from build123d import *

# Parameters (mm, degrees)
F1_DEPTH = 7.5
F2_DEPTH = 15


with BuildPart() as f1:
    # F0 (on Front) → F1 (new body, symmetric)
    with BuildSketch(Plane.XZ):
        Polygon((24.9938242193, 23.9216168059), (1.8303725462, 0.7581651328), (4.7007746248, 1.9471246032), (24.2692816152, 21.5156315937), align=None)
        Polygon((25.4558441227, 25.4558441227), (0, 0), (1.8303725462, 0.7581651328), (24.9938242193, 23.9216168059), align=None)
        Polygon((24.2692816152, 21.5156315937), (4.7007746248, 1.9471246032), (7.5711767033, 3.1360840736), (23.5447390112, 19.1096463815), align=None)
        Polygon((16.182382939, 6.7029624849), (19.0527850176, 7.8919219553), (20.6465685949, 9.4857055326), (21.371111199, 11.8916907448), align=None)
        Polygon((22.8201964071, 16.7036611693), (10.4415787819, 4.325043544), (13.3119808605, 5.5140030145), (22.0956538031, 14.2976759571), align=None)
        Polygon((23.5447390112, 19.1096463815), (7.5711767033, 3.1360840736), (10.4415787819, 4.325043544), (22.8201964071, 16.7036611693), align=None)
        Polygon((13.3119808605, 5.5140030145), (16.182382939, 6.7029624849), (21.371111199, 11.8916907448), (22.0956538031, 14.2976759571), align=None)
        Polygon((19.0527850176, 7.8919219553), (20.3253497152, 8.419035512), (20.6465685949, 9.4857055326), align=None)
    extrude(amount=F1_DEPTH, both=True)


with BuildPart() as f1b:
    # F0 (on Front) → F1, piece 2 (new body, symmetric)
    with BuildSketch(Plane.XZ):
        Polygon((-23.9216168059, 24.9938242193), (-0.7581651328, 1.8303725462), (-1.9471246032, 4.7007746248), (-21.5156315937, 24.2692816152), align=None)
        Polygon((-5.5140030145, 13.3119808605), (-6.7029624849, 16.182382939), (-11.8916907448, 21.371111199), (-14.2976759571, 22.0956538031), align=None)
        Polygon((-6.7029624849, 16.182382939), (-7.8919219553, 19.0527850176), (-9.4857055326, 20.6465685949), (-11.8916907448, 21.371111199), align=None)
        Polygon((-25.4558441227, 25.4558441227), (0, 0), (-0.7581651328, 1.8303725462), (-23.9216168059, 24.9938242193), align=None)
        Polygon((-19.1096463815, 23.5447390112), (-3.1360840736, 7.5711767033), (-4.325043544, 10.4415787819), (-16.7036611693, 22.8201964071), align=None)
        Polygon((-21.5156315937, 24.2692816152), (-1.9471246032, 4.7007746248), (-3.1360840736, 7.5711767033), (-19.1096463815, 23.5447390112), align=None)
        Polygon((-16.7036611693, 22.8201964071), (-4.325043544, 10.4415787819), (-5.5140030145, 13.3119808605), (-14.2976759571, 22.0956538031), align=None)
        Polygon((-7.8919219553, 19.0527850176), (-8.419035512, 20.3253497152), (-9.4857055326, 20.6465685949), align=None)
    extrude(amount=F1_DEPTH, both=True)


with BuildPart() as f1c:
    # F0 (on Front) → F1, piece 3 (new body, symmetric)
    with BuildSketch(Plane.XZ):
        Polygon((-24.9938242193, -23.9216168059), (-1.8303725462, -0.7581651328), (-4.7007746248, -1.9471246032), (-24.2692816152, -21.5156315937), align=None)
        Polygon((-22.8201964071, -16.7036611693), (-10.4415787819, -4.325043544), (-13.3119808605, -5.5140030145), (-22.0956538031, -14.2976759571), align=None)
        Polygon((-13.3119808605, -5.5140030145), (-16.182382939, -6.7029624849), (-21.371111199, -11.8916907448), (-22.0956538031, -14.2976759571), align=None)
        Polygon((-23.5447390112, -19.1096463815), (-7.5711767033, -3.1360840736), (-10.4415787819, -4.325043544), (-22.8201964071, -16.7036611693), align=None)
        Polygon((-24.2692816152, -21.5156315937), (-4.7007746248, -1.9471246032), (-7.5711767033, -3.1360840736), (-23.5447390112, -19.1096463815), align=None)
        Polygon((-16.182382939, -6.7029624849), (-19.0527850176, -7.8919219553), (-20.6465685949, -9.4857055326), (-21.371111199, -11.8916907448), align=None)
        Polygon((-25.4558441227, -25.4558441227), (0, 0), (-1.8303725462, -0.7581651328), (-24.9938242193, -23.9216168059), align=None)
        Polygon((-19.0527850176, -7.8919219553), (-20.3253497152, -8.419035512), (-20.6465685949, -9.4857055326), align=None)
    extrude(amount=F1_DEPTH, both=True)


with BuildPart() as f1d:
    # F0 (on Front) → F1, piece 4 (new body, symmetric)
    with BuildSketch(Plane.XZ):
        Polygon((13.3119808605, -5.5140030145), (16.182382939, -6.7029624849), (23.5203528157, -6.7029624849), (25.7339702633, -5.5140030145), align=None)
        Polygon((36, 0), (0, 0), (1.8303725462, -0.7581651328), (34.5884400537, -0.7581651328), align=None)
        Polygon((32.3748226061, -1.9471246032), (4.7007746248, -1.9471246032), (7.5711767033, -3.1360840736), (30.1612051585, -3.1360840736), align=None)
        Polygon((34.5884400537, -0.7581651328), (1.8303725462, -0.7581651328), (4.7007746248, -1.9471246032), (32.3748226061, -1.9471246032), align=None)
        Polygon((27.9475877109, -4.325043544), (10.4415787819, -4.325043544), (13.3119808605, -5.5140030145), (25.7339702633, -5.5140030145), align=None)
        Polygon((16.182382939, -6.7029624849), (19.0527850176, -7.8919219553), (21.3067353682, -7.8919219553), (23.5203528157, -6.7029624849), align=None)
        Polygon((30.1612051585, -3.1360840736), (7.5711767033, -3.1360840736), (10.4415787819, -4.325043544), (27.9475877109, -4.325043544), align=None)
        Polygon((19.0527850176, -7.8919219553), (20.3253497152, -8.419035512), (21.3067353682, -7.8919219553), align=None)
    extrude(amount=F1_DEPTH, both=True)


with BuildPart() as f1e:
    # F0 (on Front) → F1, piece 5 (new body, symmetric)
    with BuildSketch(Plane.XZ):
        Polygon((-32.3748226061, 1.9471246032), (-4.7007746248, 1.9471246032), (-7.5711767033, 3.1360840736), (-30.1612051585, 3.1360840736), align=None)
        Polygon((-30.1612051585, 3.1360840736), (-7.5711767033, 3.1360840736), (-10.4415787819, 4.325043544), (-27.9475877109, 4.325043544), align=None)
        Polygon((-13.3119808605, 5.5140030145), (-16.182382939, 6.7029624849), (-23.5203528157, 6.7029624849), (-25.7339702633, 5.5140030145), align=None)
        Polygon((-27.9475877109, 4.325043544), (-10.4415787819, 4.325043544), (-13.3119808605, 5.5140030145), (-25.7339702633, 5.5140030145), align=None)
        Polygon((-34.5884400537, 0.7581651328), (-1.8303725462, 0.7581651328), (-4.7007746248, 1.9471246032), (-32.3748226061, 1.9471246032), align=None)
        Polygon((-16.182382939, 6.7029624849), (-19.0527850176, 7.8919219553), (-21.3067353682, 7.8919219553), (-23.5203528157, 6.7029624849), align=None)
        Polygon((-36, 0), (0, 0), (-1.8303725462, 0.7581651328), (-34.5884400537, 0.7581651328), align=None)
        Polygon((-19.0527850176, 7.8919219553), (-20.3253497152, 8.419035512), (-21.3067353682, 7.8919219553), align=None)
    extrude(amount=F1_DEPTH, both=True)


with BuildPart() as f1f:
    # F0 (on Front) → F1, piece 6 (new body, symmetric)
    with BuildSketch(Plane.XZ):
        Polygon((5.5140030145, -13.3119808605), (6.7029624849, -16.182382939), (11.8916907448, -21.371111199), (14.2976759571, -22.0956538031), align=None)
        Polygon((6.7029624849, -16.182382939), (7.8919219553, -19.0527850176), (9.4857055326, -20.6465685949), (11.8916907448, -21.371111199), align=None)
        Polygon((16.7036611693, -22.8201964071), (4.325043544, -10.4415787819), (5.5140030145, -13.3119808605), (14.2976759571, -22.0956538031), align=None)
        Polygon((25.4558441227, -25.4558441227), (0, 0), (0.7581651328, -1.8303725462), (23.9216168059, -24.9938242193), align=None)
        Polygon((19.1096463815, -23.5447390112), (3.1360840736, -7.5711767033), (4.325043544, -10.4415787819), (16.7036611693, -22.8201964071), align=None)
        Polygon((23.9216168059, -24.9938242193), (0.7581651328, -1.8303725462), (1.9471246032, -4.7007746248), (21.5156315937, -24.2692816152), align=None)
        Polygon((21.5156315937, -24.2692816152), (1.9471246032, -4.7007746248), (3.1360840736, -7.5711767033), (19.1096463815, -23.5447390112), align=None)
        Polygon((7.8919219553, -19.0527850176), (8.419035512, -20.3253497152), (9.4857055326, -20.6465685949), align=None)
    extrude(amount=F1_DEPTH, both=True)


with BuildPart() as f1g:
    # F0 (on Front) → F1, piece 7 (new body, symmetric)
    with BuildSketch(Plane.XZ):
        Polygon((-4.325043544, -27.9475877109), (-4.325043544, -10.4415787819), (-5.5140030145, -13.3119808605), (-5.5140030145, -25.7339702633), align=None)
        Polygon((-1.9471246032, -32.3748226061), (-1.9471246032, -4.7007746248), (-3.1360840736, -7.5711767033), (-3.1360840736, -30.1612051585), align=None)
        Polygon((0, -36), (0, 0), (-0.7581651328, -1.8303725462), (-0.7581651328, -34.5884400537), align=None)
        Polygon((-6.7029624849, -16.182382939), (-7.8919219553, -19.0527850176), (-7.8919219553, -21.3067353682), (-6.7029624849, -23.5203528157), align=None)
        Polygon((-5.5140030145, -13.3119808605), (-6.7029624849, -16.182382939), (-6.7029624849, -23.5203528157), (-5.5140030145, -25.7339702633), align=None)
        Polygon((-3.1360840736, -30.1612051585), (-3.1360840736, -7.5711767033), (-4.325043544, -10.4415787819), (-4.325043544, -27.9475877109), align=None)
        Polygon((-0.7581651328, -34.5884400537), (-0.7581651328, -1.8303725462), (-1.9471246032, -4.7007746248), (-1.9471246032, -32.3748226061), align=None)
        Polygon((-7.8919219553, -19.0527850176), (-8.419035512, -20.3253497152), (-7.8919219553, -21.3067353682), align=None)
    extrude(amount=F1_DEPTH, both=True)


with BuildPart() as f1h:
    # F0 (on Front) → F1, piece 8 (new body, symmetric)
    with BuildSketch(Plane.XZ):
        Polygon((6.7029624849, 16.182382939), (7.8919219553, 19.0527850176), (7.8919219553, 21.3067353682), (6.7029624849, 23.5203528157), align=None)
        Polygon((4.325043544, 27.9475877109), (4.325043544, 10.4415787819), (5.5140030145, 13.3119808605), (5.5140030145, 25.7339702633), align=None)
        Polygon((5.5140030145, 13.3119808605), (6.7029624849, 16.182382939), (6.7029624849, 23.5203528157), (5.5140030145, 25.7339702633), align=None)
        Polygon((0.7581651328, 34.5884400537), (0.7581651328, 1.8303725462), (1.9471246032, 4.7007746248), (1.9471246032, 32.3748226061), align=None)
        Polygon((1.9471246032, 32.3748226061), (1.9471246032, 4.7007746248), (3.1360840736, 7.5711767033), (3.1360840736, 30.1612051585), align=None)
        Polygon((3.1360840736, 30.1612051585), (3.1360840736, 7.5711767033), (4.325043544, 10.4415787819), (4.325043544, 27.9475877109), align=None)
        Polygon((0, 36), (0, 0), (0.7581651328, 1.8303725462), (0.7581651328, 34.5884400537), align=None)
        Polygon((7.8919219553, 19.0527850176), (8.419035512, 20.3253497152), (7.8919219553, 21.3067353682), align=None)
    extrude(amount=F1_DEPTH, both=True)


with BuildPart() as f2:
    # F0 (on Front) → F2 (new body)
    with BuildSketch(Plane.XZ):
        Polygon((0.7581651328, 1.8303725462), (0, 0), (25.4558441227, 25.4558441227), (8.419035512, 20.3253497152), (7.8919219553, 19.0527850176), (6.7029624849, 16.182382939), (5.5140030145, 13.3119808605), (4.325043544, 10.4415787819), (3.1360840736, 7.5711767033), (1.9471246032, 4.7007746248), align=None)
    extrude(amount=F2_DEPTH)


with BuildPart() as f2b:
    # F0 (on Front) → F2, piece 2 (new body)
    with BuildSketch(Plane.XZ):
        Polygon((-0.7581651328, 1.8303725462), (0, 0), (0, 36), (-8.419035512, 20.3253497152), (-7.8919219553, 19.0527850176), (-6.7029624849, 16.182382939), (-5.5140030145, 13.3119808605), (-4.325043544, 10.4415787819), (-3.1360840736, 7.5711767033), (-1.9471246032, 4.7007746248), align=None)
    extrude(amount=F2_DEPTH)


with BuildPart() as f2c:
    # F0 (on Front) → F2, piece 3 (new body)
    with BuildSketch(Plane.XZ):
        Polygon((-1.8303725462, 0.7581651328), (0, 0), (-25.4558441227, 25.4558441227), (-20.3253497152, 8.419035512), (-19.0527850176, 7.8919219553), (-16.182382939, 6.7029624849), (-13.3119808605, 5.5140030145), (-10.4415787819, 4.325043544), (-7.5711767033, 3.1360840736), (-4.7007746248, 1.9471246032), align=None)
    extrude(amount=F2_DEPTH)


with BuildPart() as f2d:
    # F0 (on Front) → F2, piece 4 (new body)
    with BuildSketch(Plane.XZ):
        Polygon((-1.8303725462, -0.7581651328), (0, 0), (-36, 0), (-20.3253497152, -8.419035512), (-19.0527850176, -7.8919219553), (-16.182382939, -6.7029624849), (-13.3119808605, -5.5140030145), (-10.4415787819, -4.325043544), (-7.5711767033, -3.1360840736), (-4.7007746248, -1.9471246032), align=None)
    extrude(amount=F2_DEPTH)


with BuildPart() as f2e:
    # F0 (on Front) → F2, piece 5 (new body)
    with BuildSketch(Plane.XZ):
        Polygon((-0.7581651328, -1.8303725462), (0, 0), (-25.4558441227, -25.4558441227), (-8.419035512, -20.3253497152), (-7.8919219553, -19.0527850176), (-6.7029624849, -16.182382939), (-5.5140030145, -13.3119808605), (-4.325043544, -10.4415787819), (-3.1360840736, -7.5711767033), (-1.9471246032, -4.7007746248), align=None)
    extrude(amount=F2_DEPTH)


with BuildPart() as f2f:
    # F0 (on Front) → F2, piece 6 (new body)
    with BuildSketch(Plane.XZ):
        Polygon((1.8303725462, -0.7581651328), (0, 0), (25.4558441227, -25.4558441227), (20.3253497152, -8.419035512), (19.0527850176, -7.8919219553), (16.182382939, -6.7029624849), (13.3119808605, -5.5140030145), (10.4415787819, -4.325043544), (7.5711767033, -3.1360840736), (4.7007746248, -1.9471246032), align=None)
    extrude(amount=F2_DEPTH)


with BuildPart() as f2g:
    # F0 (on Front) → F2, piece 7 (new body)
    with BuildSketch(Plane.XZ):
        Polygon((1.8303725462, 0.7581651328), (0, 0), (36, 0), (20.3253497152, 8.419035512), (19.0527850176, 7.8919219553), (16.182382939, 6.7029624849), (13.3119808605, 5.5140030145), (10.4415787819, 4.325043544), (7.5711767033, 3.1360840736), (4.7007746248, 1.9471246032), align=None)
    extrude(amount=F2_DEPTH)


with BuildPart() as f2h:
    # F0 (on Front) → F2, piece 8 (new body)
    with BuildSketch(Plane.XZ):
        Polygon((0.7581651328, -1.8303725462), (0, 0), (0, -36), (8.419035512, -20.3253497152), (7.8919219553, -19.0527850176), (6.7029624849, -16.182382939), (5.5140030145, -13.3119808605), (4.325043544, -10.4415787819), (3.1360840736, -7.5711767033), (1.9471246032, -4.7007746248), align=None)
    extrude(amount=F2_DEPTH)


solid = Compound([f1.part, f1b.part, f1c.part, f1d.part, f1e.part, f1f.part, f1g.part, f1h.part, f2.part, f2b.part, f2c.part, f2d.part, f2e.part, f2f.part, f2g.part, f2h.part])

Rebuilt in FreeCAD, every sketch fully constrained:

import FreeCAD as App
import Part
import Sketcher
Q = App.Units.Quantity


def add_polygon(sketch, points):
    """Adds a closed chain of lines whose ends are joined by coincident constraints."""
    first, n = sketch.GeometryCount, len(points)
    for a, b in zip(points, points[1:] + points[:1]):
        sketch.addGeometry(Part.LineSegment(App.Vector(*a, 0), App.Vector(*b, 0)), False)
    for i in range(n):
        sketch.addConstraint(Sketcher.Constraint("Coincident", first + i, 2, first + (i + 1) % n, 1))

doc = App.newDocument("Part")
body = doc.addObject("PartDesign::Body", "Body")

# Sketch on XZ plane
sketch1 = body.newObject("Sketcher::SketchObject", "Sketch")
sketch1.AttachmentSupport = (doc.getObject("XZ_Plane"), [""])
sketch1.MapMode = "FlatFace"
add_polygon(sketch1, [(1.8, 0.8), (4.7, 1.9), (7.6, 3.1), (10.4, 4.3), (13.3, 5.5), (16.2, 6.7), (19.1, 7.9), (20.3, 8.4), (20.6, 9.5), (21.4, 11.9), (22.1, 14.3), (22.8, 16.7), (23.5, 19.1), (24.3, 21.5), (25, 23.9), (25.5, 25.5), (0, 0)])  # lines 0-16
sketch1.addConstraint([
    Sketcher.Constraint("Coincident", 15, 2, -1, 1),
    Sketcher.Constraint("Parallel", 0, 1),
    Sketcher.Constraint("Parallel", 1, 2),
    Sketcher.Constraint("Parallel", 2, 3),
    Sketcher.Constraint("Parallel", 3, 4),
    Sketcher.Constraint("Parallel", 4, 5),
    Sketcher.Constraint("Parallel", 5, 6),
    Sketcher.Constraint("Parallel", 7, 8),
    Sketcher.Constraint("Parallel", 8, 9),
    Sketcher.Constraint("Parallel", 9, 10),
    Sketcher.Constraint("Parallel", 10, 11),
    Sketcher.Constraint("Parallel", 11, 12),
    Sketcher.Constraint("Parallel", 12, 13),
    Sketcher.Constraint("Parallel", 13, 14),
    Sketcher.Constraint("Parallel", 6, 16),
    Sketcher.Constraint("Equal", 0, 1),
    Sketcher.Constraint("Equal", 1, 2),
    Sketcher.Constraint("Equal", 2, 3),
    Sketcher.Constraint("Equal", 3, 4),
    Sketcher.Constraint("Equal", 4, 5),
    Sketcher.Constraint("Equal", 8, 9),
    Sketcher.Constraint("Equal", 9, 10),
    Sketcher.Constraint("Equal", 10, 11),
    Sketcher.Constraint("Equal", 11, 12),
    Sketcher.Constraint("Equal", 12, 13),
    Sketcher.Constraint("Angle", 15, Q("-135 deg")),
    Sketcher.Constraint("Distance", 15, Q("36 mm")),
    Sketcher.Constraint("Angle", 0, Q("22.5 deg")),
    Sketcher.Constraint("Distance", 0, Q("3.106901 mm")),
    Sketcher.Constraint("Distance", 16, Q("1.981181 mm")),
    Sketcher.Constraint("DistanceX", -1, 1, 6, 2, Q("20.32535 mm")),
    Sketcher.Constraint("DistanceX", -1, 1, 7, 2, Q("20.646569 mm")),
    Sketcher.Constraint("DistanceX", -1, 1, 8, 2, Q("21.371111 mm")),
])
pad1 = body.newObject("PartDesign::Pad", "Pad")
pad1.Profile = sketch1
pad1.Length = 15
pad1.Midplane = True
body2 = doc.addObject("PartDesign::Body", "Body001")

# Sketch on XZ plane
sketch2 = body2.newObject("Sketcher::SketchObject", "Sketch001")
sketch2.AttachmentSupport = (doc.getObject("XZ_Plane001"), [""])
sketch2.MapMode = "FlatFace"
add_polygon(sketch2, [(-0.8, 1.8), (-1.9, 4.7), (-3.1, 7.6), (-4.3, 10.4), (-5.5, 13.3), (-6.7, 16.2), (-7.9, 19.1), (-8.4, 20.3), (-9.5, 20.6), (-11.9, 21.4), (-14.3, 22.1), (-16.7, 22.8), (-19.1, 23.5), (-21.5, 24.3), (-23.9, 25), (-25.5, 25.5), (0, 0)])  # lines 0-16
sketch2.addConstraint([
    Sketcher.Constraint("Coincident", 15, 2, -1, 1),
    Sketcher.Constraint("Parallel", 0, 1),
    Sketcher.Constraint("Parallel", 1, 2),
    Sketcher.Constraint("Parallel", 2, 3),
    Sketcher.Constraint("Parallel", 3, 4),
    Sketcher.Constraint("Parallel", 4, 5),
    Sketcher.Constraint("Parallel", 5, 6),
    Sketcher.Constraint("Parallel", 7, 8),
    Sketcher.Constraint("Parallel", 8, 9),
    Sketcher.Constraint("Parallel", 9, 10),
    Sketcher.Constraint("Parallel", 10, 11),
    Sketcher.Constraint("Parallel", 11, 12),
    Sketcher.Constraint("Parallel", 12, 13),
    Sketcher.Constraint("Parallel", 13, 14),
    Sketcher.Constraint("Parallel", 6, 16),
    Sketcher.Constraint("Equal", 0, 1),
    Sketcher.Constraint("Equal", 1, 2),
    Sketcher.Constraint("Equal", 2, 3),
    Sketcher.Constraint("Equal", 3, 4),
    Sketcher.Constraint("Equal", 4, 5),
    Sketcher.Constraint("Equal", 8, 9),
    Sketcher.Constraint("Equal", 9, 10),
    Sketcher.Constraint("Equal", 10, 11),
    Sketcher.Constraint("Equal", 11, 12),
    Sketcher.Constraint("Equal", 12, 13),
    Sketcher.Constraint("Angle", 15, Q("-45 deg")),
    Sketcher.Constraint("Distance", 15, Q("36 mm")),
    Sketcher.Constraint("Angle", 0, Q("112.5 deg")),
    Sketcher.Constraint("Distance", 0, Q("3.106901 mm")),
    Sketcher.Constraint("Distance", 16, Q("1.981181 mm")),
    Sketcher.Constraint("DistanceY", -1, 1, 6, 2, Q("20.32535 mm")),
    Sketcher.Constraint("DistanceY", -1, 1, 7, 2, Q("20.646569 mm")),
    Sketcher.Constraint("DistanceX", 8, 2, -1, 1, Q("11.891691 mm")),
])
pad2 = body2.newObject("PartDesign::Pad", "Pad001")
pad2.Profile = sketch2
pad2.Length = 15
pad2.Midplane = True
body3 = doc.addObject("PartDesign::Body", "Body002")

# Sketch on XZ plane
sketch3 = body3.newObject("Sketcher::SketchObject", "Sketch002")
sketch3.AttachmentSupport = (doc.getObject("XZ_Plane002"), [""])
sketch3.MapMode = "FlatFace"
add_polygon(sketch3, [(-1.8, -0.8), (-4.7, -1.9), (-7.6, -3.1), (-10.4, -4.3), (-13.3, -5.5), (-16.2, -6.7), (-19.1, -7.9), (-20.3, -8.4), (-20.6, -9.5), (-21.4, -11.9), (-22.1, -14.3), (-22.8, -16.7), (-23.5, -19.1), (-24.3, -21.5), (-25, -23.9), (-25.5, -25.5), (0, 0)])  # lines 0-16
sketch3.addConstraint([
    Sketcher.Constraint("Coincident", 15, 2, -1, 1),
    Sketcher.Constraint("Parallel", 0, 1),
    Sketcher.Constraint("Parallel", 1, 2),
    Sketcher.Constraint("Parallel", 2, 3),
    Sketcher.Constraint("Parallel", 3, 4),
    Sketcher.Constraint("Parallel", 4, 5),
    Sketcher.Constraint("Parallel", 5, 6),
    Sketcher.Constraint("Parallel", 7, 8),
    Sketcher.Constraint("Parallel", 8, 9),
    Sketcher.Constraint("Parallel", 9, 10),
    Sketcher.Constraint("Parallel", 10, 11),
    Sketcher.Constraint("Parallel", 11, 12),
    Sketcher.Constraint("Parallel", 12, 13),
    Sketcher.Constraint("Parallel", 13, 14),
    Sketcher.Constraint("Parallel", 6, 16),
    Sketcher.Constraint("Equal", 0, 1),
    Sketcher.Constraint("Equal", 1, 2),
    Sketcher.Constraint("Equal", 2, 3),
    Sketcher.Constraint("Equal", 3, 4),
    Sketcher.Constraint("Equal", 4, 5),
    Sketcher.Constraint("Equal", 8, 9),
    Sketcher.Constraint("Equal", 9, 10),
    Sketcher.Constraint("Equal", 10, 11),
    Sketcher.Constraint("Equal", 11, 12),
    Sketcher.Constraint("Equal", 12, 13),
    Sketcher.Constraint("Angle", 15, Q("45 deg")),
    Sketcher.Constraint("Distance", 15, Q("36 mm")),
    Sketcher.Constraint("Angle", 0, Q("-157.5 deg")),
    Sketcher.Constraint("Distance", 0, Q("3.106901 mm")),
    Sketcher.Constraint("Distance", 16, Q("1.981181 mm")),
    Sketcher.Constraint("DistanceX", 6, 2, -1, 1, Q("20.32535 mm")),
    Sketcher.Constraint("DistanceX", 7, 2, -1, 1, Q("20.646569 mm")),
    Sketcher.Constraint("DistanceX", 8, 2, -1, 1, Q("21.371111 mm")),
])
pad3 = body3.newObject("PartDesign::Pad", "Pad002")
pad3.Profile = sketch3
pad3.Length = 15
pad3.Midplane = True
body4 = doc.addObject("PartDesign::Body", "Body003")

# Sketch on XZ plane
sketch4 = body4.newObject("Sketcher::SketchObject", "Sketch003")
sketch4.AttachmentSupport = (doc.getObject("XZ_Plane003"), [""])
sketch4.MapMode = "FlatFace"
add_polygon(sketch4, [(13.3, -5.5), (16.2, -6.7), (19.1, -7.9), (20.3, -8.4), (21.3, -7.9), (23.5, -6.7), (25.7, -5.5), (27.9, -4.3), (34.6, -0.8), (36, 0), (0, 0), (1.8, -0.8), (4.7, -1.9), (7.6, -3.1), (10.4, -4.3)])  # lines 0-14
sketch4.addConstraint([
    Sketcher.Constraint("Horizontal", 9),
    Sketcher.Constraint("Coincident", 9, 2, -1, 1),
    Sketcher.Constraint("Parallel", 0, 1),
    Sketcher.Constraint("Parallel", 1, 2),
    Sketcher.Constraint("Parallel", 3, 4),
    Sketcher.Constraint("Parallel", 4, 5),
    Sketcher.Constraint("Parallel", 5, 6),
    Sketcher.Constraint("Parallel", 6, 7),
    Sketcher.Constraint("Parallel", 7, 8),
    Sketcher.Constraint("Parallel", 2, 10),
    Sketcher.Constraint("Parallel", 10, 11),
    Sketcher.Constraint("Parallel", 11, 12),
    Sketcher.Constraint("Parallel", 12, 13),
    Sketcher.Constraint("Parallel", 13, 14),
    Sketcher.Constraint("Horizontal", 1, 2, 3, 2),
    Sketcher.Constraint("Horizontal", 0, 2, 4, 2),
    Sketcher.Constraint("Horizontal", 7, 2, 10, 2),
    Sketcher.Constraint("Horizontal", 6, 2, 13, 2),
    Sketcher.Constraint("Horizontal", 5, 2, 14, 2),
    Sketcher.Constraint("Equal", 0, 1),
    Sketcher.Constraint("Equal", 5, 6),
    Sketcher.Constraint("Equal", 1, 11),
    Sketcher.Constraint("Equal", 11, 12),
    Sketcher.Constraint("Equal", 12, 13),
    Sketcher.Constraint("DistanceX", 9, 2, 9, 1, Q("36 mm")),
    Sketcher.Constraint("Angle", 0, Q("-22.5 deg")),
    Sketcher.Constraint("Distance", 0, Q("3.106901 mm")),
    Sketcher.Constraint("Distance", 7, Q("7.538139 mm")),
    Sketcher.Constraint("Distance", 10, Q("1.981181 mm")),
])
pad4 = body4.newObject("PartDesign::Pad", "Pad003")
pad4.Profile = sketch4
pad4.Length = 15
pad4.Midplane = True
body5 = doc.addObject("PartDesign::Body", "Body004")

# Sketch on XZ plane
sketch5 = body5.newObject("Sketcher::SketchObject", "Sketch004")
sketch5.AttachmentSupport = (doc.getObject("XZ_Plane004"), [""])
sketch5.MapMode = "FlatFace"
add_polygon(sketch5, [(-4.7, 1.9), (-7.6, 3.1), (-10.4, 4.3), (-13.3, 5.5), (-16.2, 6.7), (-19.1, 7.9), (-20.3, 8.4), (-21.3, 7.9), (-23.5, 6.7), (-25.7, 5.5), (-27.9, 4.3), (-34.6, 0.8), (-36, 0), (0, 0), (-1.8, 0.8)])  # lines 0-14
sketch5.addConstraint([
    Sketcher.Constraint("Horizontal", 12),
    Sketcher.Constraint("Coincident", 12, 2, -1, 1),
    Sketcher.Constraint("Parallel", 0, 1),
    Sketcher.Constraint("Parallel", 1, 2),
    Sketcher.Constraint("Parallel", 2, 3),
    Sketcher.Constraint("Parallel", 3, 4),
    Sketcher.Constraint("Parallel", 4, 5),
    Sketcher.Constraint("Parallel", 6, 7),
    Sketcher.Constraint("Parallel", 7, 8),
    Sketcher.Constraint("Parallel", 8, 9),
    Sketcher.Constraint("Parallel", 9, 10),
    Sketcher.Constraint("Parallel", 10, 11),
    Sketcher.Constraint("Parallel", 5, 13),
    Sketcher.Constraint("Parallel", 13, 14),
    Sketcher.Constraint("Horizontal", 4, 2, 6, 2),
    Sketcher.Constraint("Horizontal", 3, 2, 7, 2),
    Sketcher.Constraint("Horizontal", 2, 2, 8, 2),
    Sketcher.Constraint("Horizontal", 1, 2, 9, 2),
    Sketcher.Constraint("Horizontal", 10, 2, 13, 2),
    Sketcher.Constraint("Equal", 0, 1),
    Sketcher.Constraint("Equal", 1, 2),
    Sketcher.Constraint("Equal", 2, 3),
    Sketcher.Constraint("Equal", 3, 4),
    Sketcher.Constraint("Equal", 4, 14),
    Sketcher.Constraint("DistanceX", 12, 1, 12, 2, Q("36 mm")),
    Sketcher.Constraint("Angle", 0, Q("157.5 deg")),
    Sketcher.Constraint("Distance", 0, Q("3.106901 mm")),
    Sketcher.Constraint("Distance", 10, Q("7.538139 mm")),
    Sketcher.Constraint("Distance", 13, Q("1.981181 mm")),
])
pad5 = body5.newObject("PartDesign::Pad", "Pad004")
pad5.Profile = sketch5
pad5.Length = 15
pad5.Midplane = True
body6 = doc.addObject("PartDesign::Body", "Body005")

# Sketch on XZ plane
sketch6 = body6.newObject("Sketcher::SketchObject", "Sketch005")
sketch6.AttachmentSupport = (doc.getObject("XZ_Plane005"), [""])
sketch6.MapMode = "FlatFace"
add_polygon(sketch6, [(5.5, -13.3), (6.7, -16.2), (7.9, -19.1), (8.4, -20.3), (9.5, -20.6), (11.9, -21.4), (14.3, -22.1), (16.7, -22.8), (19.1, -23.5), (21.5, -24.3), (23.9, -25), (25.5, -25.5), (0, 0), (0.8, -1.8), (1.9, -4.7), (3.1, -7.6), (4.3, -10.4)])  # lines 0-16
sketch6.addConstraint([
    Sketcher.Constraint("Coincident", 11, 2, -1, 1),
    Sketcher.Constraint("Parallel", 0, 1),
    Sketcher.Constraint("Parallel", 1, 2),
    Sketcher.Constraint("Parallel", 3, 4),
    Sketcher.Constraint("Parallel", 4, 5),
    Sketcher.Constraint("Parallel", 5, 6),
    Sketcher.Constraint("Parallel", 6, 7),
    Sketcher.Constraint("Parallel", 7, 8),
    Sketcher.Constraint("Parallel", 8, 9),
    Sketcher.Constraint("Parallel", 9, 10),
    Sketcher.Constraint("Parallel", 2, 12),
    Sketcher.Constraint("Parallel", 12, 13),
    Sketcher.Constraint("Parallel", 13, 14),
    Sketcher.Constraint("Parallel", 14, 15),
    Sketcher.Constraint("Parallel", 15, 16),
    Sketcher.Constraint("Equal", 0, 1),
    Sketcher.Constraint("Equal", 4, 5),
    Sketcher.Constraint("Equal", 5, 6),
    Sketcher.Constraint("Equal", 6, 7),
    Sketcher.Constraint("Equal", 7, 8),
    Sketcher.Constraint("Equal", 8, 9),
    Sketcher.Constraint("Equal", 1, 13),
    Sketcher.Constraint("Equal", 13, 14),
    Sketcher.Constraint("Equal", 14, 15),
    Sketcher.Constraint("Equal", 15, 16),
    Sketcher.Constraint("Angle", 11, Q("135 deg")),
    Sketcher.Constraint("Distance", 11, Q("36 mm")),
    Sketcher.Constraint("Angle", 0, Q("-67.5 deg")),
    Sketcher.Constraint("Distance", 0, Q("3.106901 mm")),
    Sketcher.Constraint("Distance", 12, Q("1.981181 mm")),
    Sketcher.Constraint("DistanceY", 2, 2, -1, 1, Q("20.32535 mm")),
    Sketcher.Constraint("DistanceY", 3, 2, -1, 1, Q("20.646569 mm")),
    Sketcher.Constraint("DistanceX", -1, 1, 4, 2, Q("11.891691 mm")),
])
pad6 = body6.newObject("PartDesign::Pad", "Pad005")
pad6.Profile = sketch6
pad6.Length = 15
pad6.Midplane = True
body7 = doc.addObject("PartDesign::Body", "Body006")

# Sketch on XZ plane
sketch7 = body7.newObject("Sketcher::SketchObject", "Sketch006")
sketch7.AttachmentSupport = (doc.getObject("XZ_Plane006"), [""])
sketch7.MapMode = "FlatFace"
add_polygon(sketch7, [(-4.3, -10.4), (-5.5, -13.3), (-6.7, -16.2), (-7.9, -19.1), (-8.4, -20.3), (-7.9, -21.3), (-6.7, -23.5), (-5.5, -25.7), (-4.3, -27.9), (-0.8, -34.6), (0, -36), (0, 0), (-0.8, -1.8), (-1.9, -4.7), (-3.1, -7.6)])  # lines 0-14
sketch7.addConstraint([
    Sketcher.Constraint("Vertical", 10),
    Sketcher.Constraint("Coincident", 10, 2, -1, 1),
    Sketcher.Constraint("Parallel", 0, 1),
    Sketcher.Constraint("Parallel", 1, 2),
    Sketcher.Constraint("Parallel", 2, 3),
    Sketcher.Constraint("Parallel", 4, 5),
    Sketcher.Constraint("Parallel", 5, 6),
    Sketcher.Constraint("Parallel", 6, 7),
    Sketcher.Constraint("Parallel", 7, 8),
    Sketcher.Constraint("Parallel", 8, 9),
    Sketcher.Constraint("Parallel", 3, 11),
    Sketcher.Constraint("Parallel", 11, 12),
    Sketcher.Constraint("Parallel", 12, 13),
    Sketcher.Constraint("Parallel", 13, 14),
    Sketcher.Constraint("Vertical", 2, 2, 4, 2),
    Sketcher.Constraint("Vertical", 1, 2, 5, 2),
    Sketcher.Constraint("Vertical", 0, 2, 6, 2),
    Sketcher.Constraint("Vertical", 8, 2, 11, 2),
    Sketcher.Constraint("Vertical", 7, 2, 14, 2),
    Sketcher.Constraint("Equal", 0, 1),
    Sketcher.Constraint("Equal", 1, 2),
    Sketcher.Constraint("Equal", 2, 12),
    Sketcher.Constraint("Equal", 12, 13),
    Sketcher.Constraint("Equal", 13, 14),
    Sketcher.Constraint("DistanceY", 10, 1, 10, 2, Q("36 mm")),
    Sketcher.Constraint("Angle", 0, Q("-112.5 deg")),
    Sketcher.Constraint("Distance", 0, Q("3.106901 mm")),
    Sketcher.Constraint("Distance", 8, Q("7.538139 mm")),
    Sketcher.Constraint("Distance", 11, Q("1.981181 mm")),
])
pad7 = body7.newObject("PartDesign::Pad", "Pad006")
pad7.Profile = sketch7
pad7.Length = 15
pad7.Midplane = True
body8 = doc.addObject("PartDesign::Body", "Body007")

# Sketch on XZ plane
sketch8 = body8.newObject("Sketcher::SketchObject", "Sketch007")
sketch8.AttachmentSupport = (doc.getObject("XZ_Plane007"), [""])
sketch8.MapMode = "FlatFace"
add_polygon(sketch8, [(6.7, 16.2), (7.9, 19.1), (8.4, 20.3), (7.9, 21.3), (6.7, 23.5), (5.5, 25.7), (4.3, 27.9), (0.8, 34.6), (0, 36), (0, 0), (0.8, 1.8), (1.9, 4.7), (3.1, 7.6), (4.3, 10.4), (5.5, 13.3)])  # lines 0-14
sketch8.addConstraint([
    Sketcher.Constraint("Vertical", 8),
    Sketcher.Constraint("Coincident", 8, 2, -1, 1),
    Sketcher.Constraint("Parallel", 0, 1),
    Sketcher.Constraint("Parallel", 2, 3),
    Sketcher.Constraint("Parallel", 3, 4),
    Sketcher.Constraint("Parallel", 4, 5),
    Sketcher.Constraint("Parallel", 5, 6),
    Sketcher.Constraint("Parallel", 6, 7),
    Sketcher.Constraint("Parallel", 1, 9),
    Sketcher.Constraint("Parallel", 9, 10),
    Sketcher.Constraint("Parallel", 10, 11),
    Sketcher.Constraint("Parallel", 11, 12),
    Sketcher.Constraint("Parallel", 12, 13),
    Sketcher.Constraint("Parallel", 13, 14),
    Sketcher.Constraint("Vertical", 0, 2, 2, 2),
    Sketcher.Constraint("Vertical", 6, 2, 9, 2),
    Sketcher.Constraint("Vertical", 5, 2, 12, 2),
    Sketcher.Constraint("Vertical", 4, 2, 13, 2),
    Sketcher.Constraint("Vertical", 3, 2, 14, 2),
    Sketcher.Constraint("Equal", 3, 4),
    Sketcher.Constraint("Equal", 4, 5),
    Sketcher.Constraint("Equal", 0, 10),
    Sketcher.Constraint("Equal", 10, 11),
    Sketcher.Constraint("Equal", 11, 12),
    Sketcher.Constraint("DistanceY", 8, 2, 8, 1, Q("36 mm")),
    Sketcher.Constraint("Angle", 0, Q("67.5 deg")),
    Sketcher.Constraint("Distance", 0, Q("3.106901 mm")),
    Sketcher.Constraint("Distance", 6, Q("7.538139 mm")),
    Sketcher.Constraint("Distance", 9, Q("1.981181 mm")),
])
pad8 = body8.newObject("PartDesign::Pad", "Pad007")
pad8.Profile = sketch8
pad8.Length = 15
pad8.Midplane = True
body9 = doc.addObject("PartDesign::Body", "Body008")

# Sketch on XZ plane
sketch9 = body9.newObject("Sketcher::SketchObject", "Sketch008")
sketch9.AttachmentSupport = (doc.getObject("XZ_Plane008"), [""])
sketch9.MapMode = "FlatFace"
add_polygon(sketch9, [(0.8, 1.8), (0, 0), (25.5, 25.5), (8.4, 20.3), (7.9, 19.1), (6.7, 16.2), (5.5, 13.3), (4.3, 10.4), (3.1, 7.6), (1.9, 4.7)])  # lines 0-9
sketch9.addConstraint([
    Sketcher.Constraint("Coincident", 0, 2, -1, 1),
    Sketcher.Constraint("Parallel", 0, 3),
    Sketcher.Constraint("Parallel", 3, 4),
    Sketcher.Constraint("Parallel", 4, 5),
    Sketcher.Constraint("Parallel", 5, 6),
    Sketcher.Constraint("Parallel", 6, 7),
    Sketcher.Constraint("Parallel", 7, 8),
    Sketcher.Constraint("Parallel", 8, 9),
    Sketcher.Constraint("Equal", 4, 5),
    Sketcher.Constraint("Equal", 5, 6),
    Sketcher.Constraint("Equal", 6, 7),
    Sketcher.Constraint("Equal", 7, 8),
    Sketcher.Constraint("Equal", 8, 9),
    Sketcher.Constraint("Angle", 1, Q("45 deg")),
    Sketcher.Constraint("Distance", 1, Q("36 mm")),
    Sketcher.Constraint("Angle", 0, Q("-112.5 deg")),
    Sketcher.Constraint("Distance", 4, Q("3.106901 mm")),
    Sketcher.Constraint("Distance", 0, Q("1.981181 mm")),
    Sketcher.Constraint("Distance", 2, Q("17.79255 mm")),
])
pad9 = body9.newObject("PartDesign::Pad", "Pad008")
pad9.Profile = sketch9
pad9.Length = 15
body10 = doc.addObject("PartDesign::Body", "Body009")

# Sketch on XZ plane
sketch10 = body10.newObject("Sketcher::SketchObject", "Sketch009")
sketch10.AttachmentSupport = (doc.getObject("XZ_Plane009"), [""])
sketch10.MapMode = "FlatFace"
add_polygon(sketch10, [(-0.8, 1.8), (0, 0), (0, 36), (-8.4, 20.3), (-7.9, 19.1), (-6.7, 16.2), (-5.5, 13.3), (-4.3, 10.4), (-3.1, 7.6), (-1.9, 4.7)])  # lines 0-9
sketch10.addConstraint([
    Sketcher.Constraint("Vertical", 1),
    Sketcher.Constraint("Coincident", 0, 2, -1, 1),
    Sketcher.Constraint("Parallel", 0, 3),
    Sketcher.Constraint("Parallel", 3, 4),
    Sketcher.Constraint("Parallel", 4, 5),
    Sketcher.Constraint("Parallel", 5, 6),
    Sketcher.Constraint("Parallel", 6, 7),
    Sketcher.Constraint("Parallel", 7, 8),
    Sketcher.Constraint("Parallel", 8, 9),
    Sketcher.Constraint("Equal", 4, 5),
    Sketcher.Constraint("Equal", 5, 6),
    Sketcher.Constraint("Equal", 6, 7),
    Sketcher.Constraint("Equal", 7, 8),
    Sketcher.Constraint("Equal", 8, 9),
    Sketcher.Constraint("DistanceY", 1, 1, 1, 2, Q("36 mm")),
    Sketcher.Constraint("Angle", 0, Q("-67.5 deg")),
    Sketcher.Constraint("Distance", 4, Q("3.106901 mm")),
    Sketcher.Constraint("Distance", 0, Q("1.981181 mm")),
    Sketcher.Constraint("Distance", 2, Q("17.79255 mm")),
])
pad10 = body10.newObject("PartDesign::Pad", "Pad009")
pad10.Profile = sketch10
pad10.Length = 15
body11 = doc.addObject("PartDesign::Body", "Body010")

# Sketch on XZ plane
sketch11 = body11.newObject("Sketcher::SketchObject", "Sketch010")
sketch11.AttachmentSupport = (doc.getObject("XZ_Plane010"), [""])
sketch11.MapMode = "FlatFace"
add_polygon(sketch11, [(-1.8, 0.8), (0, 0), (-25.5, 25.5), (-20.3, 8.4), (-19.1, 7.9), (-16.2, 6.7), (-13.3, 5.5), (-10.4, 4.3), (-7.6, 3.1), (-4.7, 1.9)])  # lines 0-9
sketch11.addConstraint([
    Sketcher.Constraint("Coincident", 0, 2, -1, 1),
    Sketcher.Constraint("Parallel", 0, 3),
    Sketcher.Constraint("Parallel", 3, 4),
    Sketcher.Constraint("Parallel", 4, 5),
    Sketcher.Constraint("Parallel", 5, 6),
    Sketcher.Constraint("Parallel", 6, 7),
    Sketcher.Constraint("Parallel", 7, 8),
    Sketcher.Constraint("Parallel", 8, 9),
    Sketcher.Constraint("Equal", 4, 5),
    Sketcher.Constraint("Equal", 5, 6),
    Sketcher.Constraint("Equal", 6, 7),
    Sketcher.Constraint("Equal", 7, 8),
    Sketcher.Constraint("Equal", 8, 9),
    Sketcher.Constraint("Angle", 1, Q("135 deg")),
    Sketcher.Constraint("Distance", 1, Q("36 mm")),
    Sketcher.Constraint("Angle", 0, Q("-22.5 deg")),
    Sketcher.Constraint("Distance", 4, Q("3.106901 mm")),
    Sketcher.Constraint("Distance", 0, Q("1.981181 mm")),
    Sketcher.Constraint("Distance", 2, Q("17.79255 mm")),
])
pad11 = body11.newObject("PartDesign::Pad", "Pad010")
pad11.Profile = sketch11
pad11.Length = 15
body12 = doc.addObject("PartDesign::Body", "Body011")

# Sketch on XZ plane
sketch12 = body12.newObject("Sketcher::SketchObject", "Sketch011")
sketch12.AttachmentSupport = (doc.getObject("XZ_Plane011"), [""])
sketch12.MapMode = "FlatFace"
add_polygon(sketch12, [(-1.8, -0.8), (0, 0), (-36, 0), (-20.3, -8.4), (-19.1, -7.9), (-16.2, -6.7), (-13.3, -5.5), (-10.4, -4.3), (-7.6, -3.1), (-4.7, -1.9)])  # lines 0-9
sketch12.addConstraint([
    Sketcher.Constraint("Horizontal", 1),
    Sketcher.Constraint("Coincident", 0, 2, -1, 1),
    Sketcher.Constraint("Parallel", 0, 3),
    Sketcher.Constraint("Parallel", 3, 4),
    Sketcher.Constraint("Parallel", 4, 5),
    Sketcher.Constraint("Parallel", 5, 6),
    Sketcher.Constraint("Parallel", 6, 7),
    Sketcher.Constraint("Parallel", 7, 8),
    Sketcher.Constraint("Parallel", 8, 9),
    Sketcher.Constraint("Equal", 4, 5),
    Sketcher.Constraint("Equal", 5, 6),
    Sketcher.Constraint("Equal", 6, 7),
    Sketcher.Constraint("Equal", 7, 8),
    Sketcher.Constraint("Equal", 8, 9),
    Sketcher.Constraint("DistanceX", 1, 2, 1, 1, Q("36 mm")),
    Sketcher.Constraint("Angle", 0, Q("22.5 deg")),
    Sketcher.Constraint("Distance", 4, Q("3.106901 mm")),
    Sketcher.Constraint("Distance", 0, Q("1.981181 mm")),
    Sketcher.Constraint("Distance", 2, Q("17.79255 mm")),
])
pad12 = body12.newObject("PartDesign::Pad", "Pad011")
pad12.Profile = sketch12
pad12.Length = 15
body13 = doc.addObject("PartDesign::Body", "Body012")

# Sketch on XZ plane
sketch13 = body13.newObject("Sketcher::SketchObject", "Sketch012")
sketch13.AttachmentSupport = (doc.getObject("XZ_Plane012"), [""])
sketch13.MapMode = "FlatFace"
add_polygon(sketch13, [(-0.8, -1.8), (0, 0), (-25.5, -25.5), (-8.4, -20.3), (-7.9, -19.1), (-6.7, -16.2), (-5.5, -13.3), (-4.3, -10.4), (-3.1, -7.6), (-1.9, -4.7)])  # lines 0-9
sketch13.addConstraint([
    Sketcher.Constraint("Coincident", 0, 2, -1, 1),
    Sketcher.Constraint("Parallel", 0, 3),
    Sketcher.Constraint("Parallel", 3, 4),
    Sketcher.Constraint("Parallel", 4, 5),
    Sketcher.Constraint("Parallel", 5, 6),
    Sketcher.Constraint("Parallel", 6, 7),
    Sketcher.Constraint("Parallel", 7, 8),
    Sketcher.Constraint("Parallel", 8, 9),
    Sketcher.Constraint("Equal", 4, 5),
    Sketcher.Constraint("Equal", 5, 6),
    Sketcher.Constraint("Equal", 6, 7),
    Sketcher.Constraint("Equal", 7, 8),
    Sketcher.Constraint("Equal", 8, 9),
    Sketcher.Constraint("Angle", 1, Q("-135 deg")),
    Sketcher.Constraint("Distance", 1, Q("36 mm")),
    Sketcher.Constraint("Angle", 0, Q("67.5 deg")),
    Sketcher.Constraint("Distance", 4, Q("3.106901 mm")),
    Sketcher.Constraint("Distance", 0, Q("1.981181 mm")),
    Sketcher.Constraint("Distance", 2, Q("17.79255 mm")),
])
pad13 = body13.newObject("PartDesign::Pad", "Pad012")
pad13.Profile = sketch13
pad13.Length = 15
body14 = doc.addObject("PartDesign::Body", "Body013")

# Sketch on XZ plane
sketch14 = body14.newObject("Sketcher::SketchObject", "Sketch013")
sketch14.AttachmentSupport = (doc.getObject("XZ_Plane013"), [""])
sketch14.MapMode = "FlatFace"
add_polygon(sketch14, [(1.8, -0.8), (0, 0), (25.5, -25.5), (20.3, -8.4), (19.1, -7.9), (16.2, -6.7), (13.3, -5.5), (10.4, -4.3), (7.6, -3.1), (4.7, -1.9)])  # lines 0-9
sketch14.addConstraint([
    Sketcher.Constraint("Coincident", 0, 2, -1, 1),
    Sketcher.Constraint("Parallel", 0, 3),
    Sketcher.Constraint("Parallel", 3, 4),
    Sketcher.Constraint("Parallel", 4, 5),
    Sketcher.Constraint("Parallel", 5, 6),
    Sketcher.Constraint("Parallel", 6, 7),
    Sketcher.Constraint("Parallel", 7, 8),
    Sketcher.Constraint("Parallel", 8, 9),
    Sketcher.Constraint("Equal", 4, 5),
    Sketcher.Constraint("Equal", 5, 6),
    Sketcher.Constraint("Equal", 6, 7),
    Sketcher.Constraint("Equal", 7, 8),
    Sketcher.Constraint("Equal", 8, 9),
    Sketcher.Constraint("Angle", 1, Q("-45 deg")),
    Sketcher.Constraint("Distance", 1, Q("36 mm")),
    Sketcher.Constraint("Angle", 0, Q("157.5 deg")),
    Sketcher.Constraint("Distance", 4, Q("3.106901 mm")),
    Sketcher.Constraint("Distance", 0, Q("1.981181 mm")),
    Sketcher.Constraint("Distance", 2, Q("17.79255 mm")),
])
pad14 = body14.newObject("PartDesign::Pad", "Pad013")
pad14.Profile = sketch14
pad14.Length = 15
body15 = doc.addObject("PartDesign::Body", "Body014")

# Sketch on XZ plane
sketch15 = body15.newObject("Sketcher::SketchObject", "Sketch014")
sketch15.AttachmentSupport = (doc.getObject("XZ_Plane014"), [""])
sketch15.MapMode = "FlatFace"
add_polygon(sketch15, [(1.8, 0.8), (0, 0), (36, 0), (20.3, 8.4), (19.1, 7.9), (16.2, 6.7), (13.3, 5.5), (10.4, 4.3), (7.6, 3.1), (4.7, 1.9)])  # lines 0-9
sketch15.addConstraint([
    Sketcher.Constraint("Horizontal", 1),
    Sketcher.Constraint("Coincident", 0, 2, -1, 1),
    Sketcher.Constraint("Parallel", 0, 3),
    Sketcher.Constraint("Parallel", 3, 4),
    Sketcher.Constraint("Parallel", 4, 5),
    Sketcher.Constraint("Parallel", 5, 6),
    Sketcher.Constraint("Parallel", 6, 7),
    Sketcher.Constraint("Parallel", 7, 8),
    Sketcher.Constraint("Parallel", 8, 9),
    Sketcher.Constraint("Equal", 4, 5),
    Sketcher.Constraint("Equal", 5, 6),
    Sketcher.Constraint("Equal", 6, 7),
    Sketcher.Constraint("Equal", 7, 8),
    Sketcher.Constraint("Equal", 8, 9),
    Sketcher.Constraint("DistanceX", 1, 1, 1, 2, Q("36 mm")),
    Sketcher.Constraint("Angle", 0, Q("-157.5 deg")),
    Sketcher.Constraint("Distance", 4, Q("3.106901 mm")),
    Sketcher.Constraint("Distance", 0, Q("1.981181 mm")),
    Sketcher.Constraint("Distance", 2, Q("17.79255 mm")),
])
pad15 = body15.newObject("PartDesign::Pad", "Pad014")
pad15.Profile = sketch15
pad15.Length = 15
body16 = doc.addObject("PartDesign::Body", "Body015")

# Sketch on XZ plane
sketch16 = body16.newObject("Sketcher::SketchObject", "Sketch015")
sketch16.AttachmentSupport = (doc.getObject("XZ_Plane015"), [""])
sketch16.MapMode = "FlatFace"
add_polygon(sketch16, [(0.8, -1.8), (0, 0), (0, -36), (8.4, -20.3), (7.9, -19.1), (6.7, -16.2), (5.5, -13.3), (4.3, -10.4), (3.1, -7.6), (1.9, -4.7)])  # lines 0-9
sketch16.addConstraint([
    Sketcher.Constraint("Vertical", 1),
    Sketcher.Constraint("Coincident", 0, 2, -1, 1),
    Sketcher.Constraint("Parallel", 0, 3),
    Sketcher.Constraint("Parallel", 3, 4),
    Sketcher.Constraint("Parallel", 4, 5),
    Sketcher.Constraint("Parallel", 5, 6),
    Sketcher.Constraint("Parallel", 6, 7),
    Sketcher.Constraint("Parallel", 7, 8),
    Sketcher.Constraint("Parallel", 8, 9),
    Sketcher.Constraint("Equal", 4, 5),
    Sketcher.Constraint("Equal", 5, 6),
    Sketcher.Constraint("Equal", 6, 7),
    Sketcher.Constraint("Equal", 7, 8),
    Sketcher.Constraint("Equal", 8, 9),
    Sketcher.Constraint("DistanceY", 1, 2, 1, 1, Q("36 mm")),
    Sketcher.Constraint("Angle", 0, Q("112.5 deg")),
    Sketcher.Constraint("Distance", 4, Q("3.106901 mm")),
    Sketcher.Constraint("Distance", 0, Q("1.981181 mm")),
    Sketcher.Constraint("Distance", 2, Q("17.79255 mm")),
])
pad16 = body16.newObject("PartDesign::Pad", "Pad015")
pad16.Profile = sketch16
pad16.Length = 15

doc.recompute()
